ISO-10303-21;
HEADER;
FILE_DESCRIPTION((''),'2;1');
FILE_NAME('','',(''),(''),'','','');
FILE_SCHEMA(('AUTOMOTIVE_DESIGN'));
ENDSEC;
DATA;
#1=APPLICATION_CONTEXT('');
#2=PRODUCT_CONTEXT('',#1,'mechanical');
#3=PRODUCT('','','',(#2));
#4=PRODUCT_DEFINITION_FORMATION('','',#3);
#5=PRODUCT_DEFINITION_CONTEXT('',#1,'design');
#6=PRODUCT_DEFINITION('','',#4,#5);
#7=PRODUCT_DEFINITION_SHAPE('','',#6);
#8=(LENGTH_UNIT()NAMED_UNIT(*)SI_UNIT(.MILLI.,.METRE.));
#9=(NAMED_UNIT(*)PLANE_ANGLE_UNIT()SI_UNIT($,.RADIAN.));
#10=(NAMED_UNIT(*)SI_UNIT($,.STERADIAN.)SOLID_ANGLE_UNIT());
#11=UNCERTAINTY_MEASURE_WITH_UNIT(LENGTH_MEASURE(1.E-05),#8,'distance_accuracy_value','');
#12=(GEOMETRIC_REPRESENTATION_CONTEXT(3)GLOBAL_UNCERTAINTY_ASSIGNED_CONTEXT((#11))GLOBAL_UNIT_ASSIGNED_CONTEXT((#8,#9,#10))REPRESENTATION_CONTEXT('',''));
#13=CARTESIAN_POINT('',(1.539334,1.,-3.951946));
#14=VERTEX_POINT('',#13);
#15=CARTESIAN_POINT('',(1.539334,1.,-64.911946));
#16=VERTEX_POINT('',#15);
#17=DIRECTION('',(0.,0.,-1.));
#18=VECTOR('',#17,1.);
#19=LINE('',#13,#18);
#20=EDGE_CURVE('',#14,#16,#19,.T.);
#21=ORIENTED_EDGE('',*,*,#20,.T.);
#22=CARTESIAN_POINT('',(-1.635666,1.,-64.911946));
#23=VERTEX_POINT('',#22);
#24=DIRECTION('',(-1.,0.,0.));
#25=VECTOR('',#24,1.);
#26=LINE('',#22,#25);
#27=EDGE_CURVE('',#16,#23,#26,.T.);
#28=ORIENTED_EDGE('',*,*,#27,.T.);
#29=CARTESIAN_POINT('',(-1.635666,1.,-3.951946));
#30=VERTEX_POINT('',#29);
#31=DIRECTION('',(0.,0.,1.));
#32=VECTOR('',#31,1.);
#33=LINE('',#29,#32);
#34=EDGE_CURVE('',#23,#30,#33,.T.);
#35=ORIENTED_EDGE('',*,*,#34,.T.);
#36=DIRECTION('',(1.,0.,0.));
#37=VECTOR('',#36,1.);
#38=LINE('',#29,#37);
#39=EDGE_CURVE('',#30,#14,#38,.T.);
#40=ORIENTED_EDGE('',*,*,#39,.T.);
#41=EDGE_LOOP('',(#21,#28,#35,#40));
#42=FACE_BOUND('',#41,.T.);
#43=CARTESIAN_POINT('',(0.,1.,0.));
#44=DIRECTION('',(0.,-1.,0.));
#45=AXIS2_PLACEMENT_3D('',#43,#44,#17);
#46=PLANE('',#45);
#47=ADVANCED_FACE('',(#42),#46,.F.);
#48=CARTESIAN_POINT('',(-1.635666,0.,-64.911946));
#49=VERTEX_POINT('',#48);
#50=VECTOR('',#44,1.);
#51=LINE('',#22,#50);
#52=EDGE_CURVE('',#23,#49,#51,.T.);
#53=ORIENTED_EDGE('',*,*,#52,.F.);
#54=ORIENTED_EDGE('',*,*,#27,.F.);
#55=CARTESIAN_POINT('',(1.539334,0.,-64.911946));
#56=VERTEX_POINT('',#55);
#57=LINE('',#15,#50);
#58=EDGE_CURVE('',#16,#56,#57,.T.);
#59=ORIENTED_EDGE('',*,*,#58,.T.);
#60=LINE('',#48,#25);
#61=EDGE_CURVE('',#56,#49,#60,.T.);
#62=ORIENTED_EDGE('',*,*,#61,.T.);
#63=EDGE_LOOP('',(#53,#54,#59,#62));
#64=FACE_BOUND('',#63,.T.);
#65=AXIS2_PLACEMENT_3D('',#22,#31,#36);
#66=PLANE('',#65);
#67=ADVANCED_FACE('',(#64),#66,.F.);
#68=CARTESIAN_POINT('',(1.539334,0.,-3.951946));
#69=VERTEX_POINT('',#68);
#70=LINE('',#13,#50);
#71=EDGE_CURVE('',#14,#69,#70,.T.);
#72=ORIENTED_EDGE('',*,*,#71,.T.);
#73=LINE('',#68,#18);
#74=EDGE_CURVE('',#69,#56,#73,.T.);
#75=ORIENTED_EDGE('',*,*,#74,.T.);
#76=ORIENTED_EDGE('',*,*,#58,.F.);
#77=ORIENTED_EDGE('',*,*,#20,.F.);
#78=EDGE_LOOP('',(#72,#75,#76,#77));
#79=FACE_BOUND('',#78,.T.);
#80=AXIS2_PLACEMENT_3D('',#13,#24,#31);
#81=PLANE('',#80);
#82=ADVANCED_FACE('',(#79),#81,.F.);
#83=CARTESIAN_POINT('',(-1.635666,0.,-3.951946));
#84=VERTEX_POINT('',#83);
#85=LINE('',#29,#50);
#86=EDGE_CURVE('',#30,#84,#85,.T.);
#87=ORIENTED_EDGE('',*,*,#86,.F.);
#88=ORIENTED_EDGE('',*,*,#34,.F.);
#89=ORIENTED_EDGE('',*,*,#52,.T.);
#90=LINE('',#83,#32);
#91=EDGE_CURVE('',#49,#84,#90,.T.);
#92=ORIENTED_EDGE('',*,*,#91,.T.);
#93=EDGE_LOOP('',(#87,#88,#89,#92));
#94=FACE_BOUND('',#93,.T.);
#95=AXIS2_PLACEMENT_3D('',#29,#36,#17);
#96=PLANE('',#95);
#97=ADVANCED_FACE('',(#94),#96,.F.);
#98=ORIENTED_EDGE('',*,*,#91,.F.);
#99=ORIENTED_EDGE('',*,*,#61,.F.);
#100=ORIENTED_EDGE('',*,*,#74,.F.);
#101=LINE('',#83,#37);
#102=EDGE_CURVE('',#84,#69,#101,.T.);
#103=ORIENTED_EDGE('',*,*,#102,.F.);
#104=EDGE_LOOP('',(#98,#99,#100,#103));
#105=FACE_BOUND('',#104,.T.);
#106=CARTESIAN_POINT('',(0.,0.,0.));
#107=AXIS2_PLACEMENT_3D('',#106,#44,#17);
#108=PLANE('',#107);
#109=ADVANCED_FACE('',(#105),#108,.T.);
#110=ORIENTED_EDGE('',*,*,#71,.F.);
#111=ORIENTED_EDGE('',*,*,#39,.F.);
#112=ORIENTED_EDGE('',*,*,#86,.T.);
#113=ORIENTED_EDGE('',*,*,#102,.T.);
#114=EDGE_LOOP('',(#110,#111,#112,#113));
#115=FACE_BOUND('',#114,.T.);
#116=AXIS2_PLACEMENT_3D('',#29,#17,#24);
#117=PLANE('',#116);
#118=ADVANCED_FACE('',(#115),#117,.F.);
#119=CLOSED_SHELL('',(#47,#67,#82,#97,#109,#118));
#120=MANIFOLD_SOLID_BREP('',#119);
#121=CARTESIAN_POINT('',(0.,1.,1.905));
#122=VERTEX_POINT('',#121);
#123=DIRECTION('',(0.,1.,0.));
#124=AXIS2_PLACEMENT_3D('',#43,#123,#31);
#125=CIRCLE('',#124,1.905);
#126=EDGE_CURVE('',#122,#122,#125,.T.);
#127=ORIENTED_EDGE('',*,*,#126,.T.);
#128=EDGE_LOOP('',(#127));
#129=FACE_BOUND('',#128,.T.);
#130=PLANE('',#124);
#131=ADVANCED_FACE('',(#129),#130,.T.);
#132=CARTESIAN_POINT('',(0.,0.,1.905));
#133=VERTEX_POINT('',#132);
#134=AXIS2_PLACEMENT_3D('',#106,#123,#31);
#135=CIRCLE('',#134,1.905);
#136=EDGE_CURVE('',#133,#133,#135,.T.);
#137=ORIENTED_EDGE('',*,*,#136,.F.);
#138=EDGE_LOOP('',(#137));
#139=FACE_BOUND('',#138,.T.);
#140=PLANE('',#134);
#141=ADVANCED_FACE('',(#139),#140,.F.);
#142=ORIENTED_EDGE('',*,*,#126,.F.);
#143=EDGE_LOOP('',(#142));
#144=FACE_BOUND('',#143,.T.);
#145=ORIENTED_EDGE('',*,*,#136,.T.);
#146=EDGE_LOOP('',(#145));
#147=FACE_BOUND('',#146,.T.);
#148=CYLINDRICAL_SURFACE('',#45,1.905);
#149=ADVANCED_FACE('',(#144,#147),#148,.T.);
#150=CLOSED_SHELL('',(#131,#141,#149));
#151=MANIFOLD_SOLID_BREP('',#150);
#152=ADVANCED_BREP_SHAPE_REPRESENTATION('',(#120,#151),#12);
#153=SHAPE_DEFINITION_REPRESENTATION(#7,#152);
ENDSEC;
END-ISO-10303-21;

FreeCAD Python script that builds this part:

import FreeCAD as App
import Part
import Sketcher
Q = App.Units.Quantity

doc = App.newDocument("Part")
body = doc.addObject("PartDesign::Body", "Body")

sketch1 = body.newObject("Sketcher::SketchObject", "Sketch")
sketch1.AttachmentSupport = (doc.getObject("XZ_Plane"), [""])
sketch1.MapMode = "FlatFace"
sketch1.addGeometry(Part.Circle(App.Vector(0, 0, 0), App.Vector(0, 0, 1), 1.905), False)
sketch1.addConstraint([
    Sketcher.Constraint("Coincident", 0, 3, -1, 1),
    Sketcher.Constraint("Diameter", 0, Q("0.15 in")),
])
pad1 = body.newObject("PartDesign::Pad", "Pad")
pad1.Profile = sketch1
pad1.Length = 1
pad1.Reversed = True
body2 = doc.addObject("PartDesign::Body", "Body001")

sketch2 = body2.newObject("Sketcher::SketchObject", "Sketch001")
sketch2.AttachmentSupport = (doc.getObject("XZ_Plane001"), [""])
sketch2.MapMode = "FlatFace"
sketch2.addGeometry([
    Part.LineSegment(App.Vector(-1.635666, -64.911946, 0), App.Vector(-1.635666, -3.951946, 0)),
    Part.LineSegment(App.Vector(-1.635666, -3.951946, 0), App.Vector(1.539334, -3.951946, 0)),
    Part.LineSegment(App.Vector(1.539334, -3.951946, 0), App.Vector(1.539334, -64.911946, 0)),
    Part.LineSegment(App.Vector(1.539334, -64.911946, 0), App.Vector(-1.635666, -64.911946, 0)),
], False)
sketch2.addConstraint([
    Sketcher.Constraint("Coincident", 0, 2, 1, 1),
    Sketcher.Constraint("Coincident", 1, 2, 2, 1),
    Sketcher.Constraint("Coincident", 2, 2, 3, 1),
    Sketcher.Constraint("Coincident", 3, 2, 0, 1),
    Sketcher.Constraint("Vertical", 0),
    Sketcher.Constraint("Horizontal", 1),
    Sketcher.Constraint("Vertical", 2),
    Sketcher.Constraint("Horizontal", 3),
    Sketcher.Constraint("DistanceY", 0, 1, 0, 2, Q("2.4 in")),
    Sketcher.Constraint("DistanceX", 1, 1, 1, 2, Q("0.125 in")),
    Sketcher.Constraint("DistanceX", 0, 2, -1, 1, 1.635666),
    Sketcher.Constraint("DistanceY", 0, 2, -1, 1, 3.951946),
])
pad2 = body2.newObject("PartDesign::Pad", "Pad001")
pad2.Profile = sketch2
pad2.Length = 1
pad2.Reversed = True

doc.recompute()
